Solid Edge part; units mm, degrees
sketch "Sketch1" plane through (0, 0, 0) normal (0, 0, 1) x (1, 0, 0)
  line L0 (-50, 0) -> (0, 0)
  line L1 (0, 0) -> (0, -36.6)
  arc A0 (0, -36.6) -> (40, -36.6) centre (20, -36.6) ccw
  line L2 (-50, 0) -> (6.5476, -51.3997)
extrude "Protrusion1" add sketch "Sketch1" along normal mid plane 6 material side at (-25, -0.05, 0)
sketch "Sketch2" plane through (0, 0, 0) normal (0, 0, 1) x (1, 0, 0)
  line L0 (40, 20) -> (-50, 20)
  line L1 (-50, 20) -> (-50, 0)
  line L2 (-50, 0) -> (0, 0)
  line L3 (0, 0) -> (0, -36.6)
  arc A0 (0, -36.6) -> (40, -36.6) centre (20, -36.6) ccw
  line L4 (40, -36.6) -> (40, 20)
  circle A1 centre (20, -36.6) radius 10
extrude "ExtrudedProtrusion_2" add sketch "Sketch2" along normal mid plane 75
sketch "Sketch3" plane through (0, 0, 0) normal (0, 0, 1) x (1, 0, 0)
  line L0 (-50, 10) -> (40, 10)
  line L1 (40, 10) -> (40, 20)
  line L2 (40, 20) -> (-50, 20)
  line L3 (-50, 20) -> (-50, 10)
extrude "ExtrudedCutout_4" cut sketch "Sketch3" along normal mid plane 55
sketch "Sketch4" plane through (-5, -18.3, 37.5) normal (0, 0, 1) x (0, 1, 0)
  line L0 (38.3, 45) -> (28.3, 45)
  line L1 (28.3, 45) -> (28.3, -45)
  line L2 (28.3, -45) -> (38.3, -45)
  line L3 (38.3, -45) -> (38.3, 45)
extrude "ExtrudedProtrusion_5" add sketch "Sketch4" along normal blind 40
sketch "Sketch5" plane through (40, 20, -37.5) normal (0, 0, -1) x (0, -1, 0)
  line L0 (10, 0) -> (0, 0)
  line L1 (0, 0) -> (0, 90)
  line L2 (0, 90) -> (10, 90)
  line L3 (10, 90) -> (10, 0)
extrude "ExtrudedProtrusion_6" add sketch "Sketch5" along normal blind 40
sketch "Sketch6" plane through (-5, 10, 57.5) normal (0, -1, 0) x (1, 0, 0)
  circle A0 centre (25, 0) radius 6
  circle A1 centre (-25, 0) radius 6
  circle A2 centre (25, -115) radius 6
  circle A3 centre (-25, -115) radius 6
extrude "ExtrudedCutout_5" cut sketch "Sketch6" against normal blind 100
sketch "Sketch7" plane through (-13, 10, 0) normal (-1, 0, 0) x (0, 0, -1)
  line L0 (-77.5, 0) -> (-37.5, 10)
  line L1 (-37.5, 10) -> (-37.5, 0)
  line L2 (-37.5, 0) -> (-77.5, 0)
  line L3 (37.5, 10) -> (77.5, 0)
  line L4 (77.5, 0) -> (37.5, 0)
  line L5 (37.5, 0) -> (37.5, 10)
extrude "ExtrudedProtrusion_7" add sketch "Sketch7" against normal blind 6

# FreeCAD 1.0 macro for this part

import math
import FreeCAD as App
import Part
import Sketcher
from FreeCAD import Vector

doc = App.newDocument("Part")
body = doc.addObject("PartDesign::Body", "Body")

# Sketch on XY plane
sketch1 = doc.addObject("Sketcher::SketchObject", "Sketch")
body.addObject(sketch1)
sketch1.AttachmentSupport = (doc.XY_Plane, [""])
sketch1.MapMode = "FlatFace"
sketch1.addGeometry([
    Part.LineSegment(Vector(0, 0, 0), Vector(-50, 0, 0)),
    Part.LineSegment(Vector(-50, 0, 0), Vector(7, -51, 0)),
    Part.ArcOfCircle(Part.Circle(Vector(20, -37, 0), Vector(0, 0, 1), 20), math.radians(180), math.radians(228)),
    Part.LineSegment(Vector(0, -37, 0), Vector(0, 0, 0)),
], False)
sketch1.addConstraint([
    Sketcher.Constraint("Coincident", 0, 2, 1, 1),
    Sketcher.Constraint("Tangent", 1, 2, 2, 2),
    Sketcher.Constraint("Tangent", 2, 1, 3, 1),
    Sketcher.Constraint("Coincident", 3, 2, 0, 1),
    Sketcher.Constraint("Horizontal", 0),
    Sketcher.Constraint("Vertical", 3),
    Sketcher.Constraint("Coincident", 3, 2, -1, 1),
    Sketcher.Constraint("Radius", 2, 20.0),
    Sketcher.Constraint("DistanceX", 0, 2, 0, 1, 50.0),
    Sketcher.Constraint("DistanceY", 3, 1, 3, 2, 36.6),
])
pad1 = doc.addObject("PartDesign::Pad", "Pad")
body.addObject(pad1)
pad1.Profile = sketch1
pad1.Length = 6
pad1.Midplane = True

# Sketch on XY plane
sketch2 = doc.addObject("Sketcher::SketchObject", "Sketch001")
body.addObject(sketch2)
sketch2.AttachmentSupport = (doc.XY_Plane, [""])
sketch2.MapMode = "FlatFace"
sketch2.addGeometry([
    Part.LineSegment(Vector(40, -37, 0), Vector(40, 20, 0)),  # 0
    Part.LineSegment(Vector(40, 20, 0), Vector(-50, 20, 0)),  # 1
    Part.LineSegment(Vector(-50, 20, 0), Vector(-50, 0, 0)),  # 2
    Part.LineSegment(Vector(-50, 0, 0), Vector(0, 0, 0)),  # 3
    Part.LineSegment(Vector(0, 0, 0), Vector(0, -37, 0)),  # 4
    Part.ArcOfCircle(Part.Circle(Vector(20, -37, 0), Vector(0, 0, 1), 20), math.radians(180), math.radians(360)),  # 5
    Part.Circle(Vector(20, -37, 0), Vector(0, 0, 1), 10),  # 6
], False)
sketch2.addConstraint([
    Sketcher.Constraint("Coincident", 0, 2, 1, 1),
    Sketcher.Constraint("Coincident", 1, 2, 2, 1),
    Sketcher.Constraint("Coincident", 2, 2, 3, 1),
    Sketcher.Constraint("Coincident", 3, 2, 4, 1),
    Sketcher.Constraint("Tangent", 4, 2, 5, 1),
    Sketcher.Constraint("Tangent", 5, 2, 0, 1),
    Sketcher.Constraint("Vertical", 0),
    Sketcher.Constraint("Horizontal", 1),
    Sketcher.Constraint("Vertical", 2),
    Sketcher.Constraint("Horizontal", 3),
    Sketcher.Constraint("Vertical", 4),
    Sketcher.Constraint("Coincident", 3, 2, -1, 1),
    Sketcher.Constraint("Coincident", 6, 3, 5, 3),
    Sketcher.Constraint("Diameter", 6, 20.0),
    Sketcher.Constraint("Radius", 5, 20.0),
    Sketcher.Constraint("DistanceX", 1, 2, 1, 1, 90.0),
    Sketcher.Constraint("DistanceY", 2, 2, 2, 1, 20.0),
    Sketcher.Constraint("DistanceY", 0, 1, 0, 2, 56.6),
])
pad2 = doc.addObject("PartDesign::Pad", "Pad001")
body.addObject(pad2)
pad2.Profile = sketch2
pad2.Length = 75
pad2.Midplane = True

# Sketch on XY plane
sketch3 = doc.addObject("Sketcher::SketchObject", "Sketch002")
body.addObject(sketch3)
sketch3.AttachmentSupport = (doc.XY_Plane, [""])
sketch3.MapMode = "FlatFace"
sketch3.addGeometry([
    Part.LineSegment(Vector(-50, 20, 0), Vector(-50, 10, 0)),
    Part.LineSegment(Vector(-50, 10, 0), Vector(40, 10, 0)),
    Part.LineSegment(Vector(40, 10, 0), Vector(40, 20, 0)),
    Part.LineSegment(Vector(40, 20, 0), Vector(-50, 20, 0)),
], False)
sketch3.addConstraint([
    Sketcher.Constraint("Coincident", 0, 2, 1, 1),
    Sketcher.Constraint("Coincident", 1, 2, 2, 1),
    Sketcher.Constraint("Coincident", 2, 2, 3, 1),
    Sketcher.Constraint("Coincident", 3, 2, 0, 1),
    Sketcher.Constraint("Vertical", 0),
    Sketcher.Constraint("Horizontal", 1),
    Sketcher.Constraint("Vertical", 2),
    Sketcher.Constraint("Horizontal", 3),
    Sketcher.Constraint("DistanceX", 1, 1, 1, 2, 90.0),
    Sketcher.Constraint("DistanceY", 0, 2, 0, 1, 10.0),
    Sketcher.Constraint("DistanceX", 0, 2, -1, 1, 50.0),
    Sketcher.Constraint("DistanceY", -1, 1, 0, 2, 10.0),
])
pocket1 = doc.addObject("PartDesign::Pocket", "Pocket")
body.addObject(pocket1)
pocket1.Profile = sketch3
pocket1.Length = 55
pocket1.Midplane = True

# Sketch on XY plane
sketch4 = doc.addObject("Sketcher::SketchObject", "Sketch003")
body.addObject(sketch4)
sketch4.AttachmentSupport = (doc.XY_Plane, [""])
sketch4.MapMode = "FlatFace"
sketch4.AttachmentOffset = App.Placement(Vector(0, 0, 37.5), App.Rotation())
sketch4.addGeometry([
    Part.LineSegment(Vector(40, 20, 0), Vector(-50, 20, 0)),
    Part.LineSegment(Vector(-50, 20, 0), Vector(-50, 10, 0)),
    Part.LineSegment(Vector(-50, 10, 0), Vector(40, 10, 0)),
    Part.LineSegment(Vector(40, 10, 0), Vector(40, 20, 0)),
], False)
sketch4.addConstraint([
    Sketcher.Constraint("Coincident", 0, 2, 1, 1),
    Sketcher.Constraint("Coincident", 1, 2, 2, 1),
    Sketcher.Constraint("Coincident", 2, 2, 3, 1),
    Sketcher.Constraint("Coincident", 3, 2, 0, 1),
    Sketcher.Constraint("Horizontal", 0),
    Sketcher.Constraint("Vertical", 1),
    Sketcher.Constraint("Horizontal", 2),
    Sketcher.Constraint("Vertical", 3),
    Sketcher.Constraint("DistanceX", 0, 2, 0, 1, 90.0),
    Sketcher.Constraint("DistanceY", 1, 2, 1, 1, 10.0),
    Sketcher.Constraint("DistanceX", 0, 2, -1, 1, 50.0),
    Sketcher.Constraint("DistanceY", -1, 1, 0, 2, 20.0),
])
pad3 = doc.addObject("PartDesign::Pad", "Pad002")
body.addObject(pad3)
pad3.Profile = sketch4
pad3.Length = 40

# Sketch on XY plane
sketch5 = doc.addObject("Sketcher::SketchObject", "Sketch004")
body.addObject(sketch5)
sketch5.AttachmentSupport = (doc.XY_Plane, [""])
sketch5.MapMode = "FlatFace"
sketch5.AttachmentOffset = App.Placement(Vector(0, 0, -37.5), App.Rotation())
sketch5.addGeometry([
    Part.LineSegment(Vector(40, 20, 0), Vector(40, 10, 0)),
    Part.LineSegment(Vector(40, 10, 0), Vector(-50, 10, 0)),
    Part.LineSegment(Vector(-50, 10, 0), Vector(-50, 20, 0)),
    Part.LineSegment(Vector(-50, 20, 0), Vector(40, 20, 0)),
], False)
sketch5.addConstraint([
    Sketcher.Constraint("Coincident", 0, 2, 1, 1),
    Sketcher.Constraint("Coincident", 1, 2, 2, 1),
    Sketcher.Constraint("Coincident", 2, 2, 3, 1),
    Sketcher.Constraint("Coincident", 3, 2, 0, 1),
    Sketcher.Constraint("Vertical", 0),
    Sketcher.Constraint("Horizontal", 1),
    Sketcher.Constraint("Vertical", 2),
    Sketcher.Constraint("Horizontal", 3),
    Sketcher.Constraint("DistanceX", 1, 2, 1, 1, 90.0),
    Sketcher.Constraint("DistanceY", 0, 2, 0, 1, 10.0),
    Sketcher.Constraint("DistanceX", -1, 1, 0, 2, 40.0),
    Sketcher.Constraint("DistanceY", -1, 1, 0, 2, 10.0),
])
pad4 = doc.addObject("PartDesign::Pad", "Pad003")
body.addObject(pad4)
pad4.Profile = sketch5
pad4.Length = 40
pad4.Reversed = True

# Sketch on XZ plane
sketch6 = doc.addObject("Sketcher::SketchObject", "Sketch005")
body.addObject(sketch6)
sketch6.AttachmentSupport = (doc.XZ_Plane, [""])
sketch6.MapMode = "FlatFace"
sketch6.AttachmentOffset = App.Placement(Vector(0, 0, -10), App.Rotation())
sketch6.addGeometry([
    Part.Circle(Vector(20, 58, 0), Vector(0, 0, 1), 6),
    Part.Circle(Vector(-30, 58, 0), Vector(0, 0, 1), 6),
    Part.Circle(Vector(20, -58, 0), Vector(0, 0, 1), 6),
    Part.Circle(Vector(-30, -58, 0), Vector(0, 0, 1), 6),
], False)
sketch6.addConstraint([
    Sketcher.Constraint("Equal", 0, 1),
    Sketcher.Constraint("Equal", 1, 2),
    Sketcher.Constraint("Equal", 2, 3),
    Sketcher.Constraint("Symmetric", 0, 3, 2, 3, -1),
    Sketcher.Constraint("Symmetric", 1, 3, 3, 3, -1),
    Sketcher.Constraint("Horizontal", 0, 3, 1, 3),
    Sketcher.Constraint("Diameter", 0, 12.0),
    Sketcher.Constraint("DistanceX", -1, 1, 0, 3, 20.0),
    Sketcher.Constraint("DistanceX", 1, 3, -1, 1, 30.0),
    Sketcher.Constraint("DistanceY", 2, 3, 0, 3, 115.0),
])
pocket2 = doc.addObject("PartDesign::Pocket", "Pocket001")
body.addObject(pocket2)
pocket2.Profile = sketch6
pocket2.Length = 100

# Sketch on YZ plane
sketch7 = doc.addObject("Sketcher::SketchObject", "Sketch006")
body.addObject(sketch7)
sketch7.AttachmentSupport = (doc.YZ_Plane, [""])
sketch7.MapMode = "FlatFace"
sketch7.AttachmentOffset = App.Placement(Vector(0, 0, -13), App.Rotation())
sketch7.addGeometry([
    Part.LineSegment(Vector(0, 38, 0), Vector(10, 78, 0)),  # 0
    Part.LineSegment(Vector(10, 78, 0), Vector(10, 38, 0)),  # 1
    Part.LineSegment(Vector(10, 38, 0), Vector(0, 38, 0)),  # 2
    Part.LineSegment(Vector(10, -78, 0), Vector(0, -38, 0)),  # 3
    Part.LineSegment(Vector(0, -38, 0), Vector(10, -38, 0)),  # 4
    Part.LineSegment(Vector(10, -38, 0), Vector(10, -78, 0)),  # 5
], False)
sketch7.addConstraint([
    Sketcher.Constraint("Coincident", 0, 2, 1, 1),
    Sketcher.Constraint("Coincident", 1, 2, 2, 1),
    Sketcher.Constraint("Coincident", 2, 2, 0, 1),
    Sketcher.Constraint("Coincident", 3, 2, 4, 1),
    Sketcher.Constraint("Coincident", 4, 2, 5, 1),
    Sketcher.Constraint("Coincident", 5, 2, 3, 1),
    Sketcher.Constraint("Vertical", 1),
    Sketcher.Constraint("Horizontal", 2),
    Sketcher.Constraint("Horizontal", 4),
    Sketcher.Constraint("Vertical", 5),
    Sketcher.Constraint("Symmetric", 2, 2, 3, 2, -1, 1),
    Sketcher.Constraint("Symmetric", 0, 2, 5, 2, -1),
    Sketcher.Constraint("PointOnObject", 2, 2, -2),
    Sketcher.Constraint("DistanceX", 2, 2, 2, 1, 10.0),
    Sketcher.Constraint("DistanceY", 1, 2, 1, 1, 40.0),
    Sketcher.Constraint("DistanceY", 3, 2, 2, 2, 75.0),
])
pad5 = doc.addObject("PartDesign::Pad", "Pad004")
body.addObject(pad5)
pad5.Profile = sketch7
pad5.Length = 6

doc.recompute()
